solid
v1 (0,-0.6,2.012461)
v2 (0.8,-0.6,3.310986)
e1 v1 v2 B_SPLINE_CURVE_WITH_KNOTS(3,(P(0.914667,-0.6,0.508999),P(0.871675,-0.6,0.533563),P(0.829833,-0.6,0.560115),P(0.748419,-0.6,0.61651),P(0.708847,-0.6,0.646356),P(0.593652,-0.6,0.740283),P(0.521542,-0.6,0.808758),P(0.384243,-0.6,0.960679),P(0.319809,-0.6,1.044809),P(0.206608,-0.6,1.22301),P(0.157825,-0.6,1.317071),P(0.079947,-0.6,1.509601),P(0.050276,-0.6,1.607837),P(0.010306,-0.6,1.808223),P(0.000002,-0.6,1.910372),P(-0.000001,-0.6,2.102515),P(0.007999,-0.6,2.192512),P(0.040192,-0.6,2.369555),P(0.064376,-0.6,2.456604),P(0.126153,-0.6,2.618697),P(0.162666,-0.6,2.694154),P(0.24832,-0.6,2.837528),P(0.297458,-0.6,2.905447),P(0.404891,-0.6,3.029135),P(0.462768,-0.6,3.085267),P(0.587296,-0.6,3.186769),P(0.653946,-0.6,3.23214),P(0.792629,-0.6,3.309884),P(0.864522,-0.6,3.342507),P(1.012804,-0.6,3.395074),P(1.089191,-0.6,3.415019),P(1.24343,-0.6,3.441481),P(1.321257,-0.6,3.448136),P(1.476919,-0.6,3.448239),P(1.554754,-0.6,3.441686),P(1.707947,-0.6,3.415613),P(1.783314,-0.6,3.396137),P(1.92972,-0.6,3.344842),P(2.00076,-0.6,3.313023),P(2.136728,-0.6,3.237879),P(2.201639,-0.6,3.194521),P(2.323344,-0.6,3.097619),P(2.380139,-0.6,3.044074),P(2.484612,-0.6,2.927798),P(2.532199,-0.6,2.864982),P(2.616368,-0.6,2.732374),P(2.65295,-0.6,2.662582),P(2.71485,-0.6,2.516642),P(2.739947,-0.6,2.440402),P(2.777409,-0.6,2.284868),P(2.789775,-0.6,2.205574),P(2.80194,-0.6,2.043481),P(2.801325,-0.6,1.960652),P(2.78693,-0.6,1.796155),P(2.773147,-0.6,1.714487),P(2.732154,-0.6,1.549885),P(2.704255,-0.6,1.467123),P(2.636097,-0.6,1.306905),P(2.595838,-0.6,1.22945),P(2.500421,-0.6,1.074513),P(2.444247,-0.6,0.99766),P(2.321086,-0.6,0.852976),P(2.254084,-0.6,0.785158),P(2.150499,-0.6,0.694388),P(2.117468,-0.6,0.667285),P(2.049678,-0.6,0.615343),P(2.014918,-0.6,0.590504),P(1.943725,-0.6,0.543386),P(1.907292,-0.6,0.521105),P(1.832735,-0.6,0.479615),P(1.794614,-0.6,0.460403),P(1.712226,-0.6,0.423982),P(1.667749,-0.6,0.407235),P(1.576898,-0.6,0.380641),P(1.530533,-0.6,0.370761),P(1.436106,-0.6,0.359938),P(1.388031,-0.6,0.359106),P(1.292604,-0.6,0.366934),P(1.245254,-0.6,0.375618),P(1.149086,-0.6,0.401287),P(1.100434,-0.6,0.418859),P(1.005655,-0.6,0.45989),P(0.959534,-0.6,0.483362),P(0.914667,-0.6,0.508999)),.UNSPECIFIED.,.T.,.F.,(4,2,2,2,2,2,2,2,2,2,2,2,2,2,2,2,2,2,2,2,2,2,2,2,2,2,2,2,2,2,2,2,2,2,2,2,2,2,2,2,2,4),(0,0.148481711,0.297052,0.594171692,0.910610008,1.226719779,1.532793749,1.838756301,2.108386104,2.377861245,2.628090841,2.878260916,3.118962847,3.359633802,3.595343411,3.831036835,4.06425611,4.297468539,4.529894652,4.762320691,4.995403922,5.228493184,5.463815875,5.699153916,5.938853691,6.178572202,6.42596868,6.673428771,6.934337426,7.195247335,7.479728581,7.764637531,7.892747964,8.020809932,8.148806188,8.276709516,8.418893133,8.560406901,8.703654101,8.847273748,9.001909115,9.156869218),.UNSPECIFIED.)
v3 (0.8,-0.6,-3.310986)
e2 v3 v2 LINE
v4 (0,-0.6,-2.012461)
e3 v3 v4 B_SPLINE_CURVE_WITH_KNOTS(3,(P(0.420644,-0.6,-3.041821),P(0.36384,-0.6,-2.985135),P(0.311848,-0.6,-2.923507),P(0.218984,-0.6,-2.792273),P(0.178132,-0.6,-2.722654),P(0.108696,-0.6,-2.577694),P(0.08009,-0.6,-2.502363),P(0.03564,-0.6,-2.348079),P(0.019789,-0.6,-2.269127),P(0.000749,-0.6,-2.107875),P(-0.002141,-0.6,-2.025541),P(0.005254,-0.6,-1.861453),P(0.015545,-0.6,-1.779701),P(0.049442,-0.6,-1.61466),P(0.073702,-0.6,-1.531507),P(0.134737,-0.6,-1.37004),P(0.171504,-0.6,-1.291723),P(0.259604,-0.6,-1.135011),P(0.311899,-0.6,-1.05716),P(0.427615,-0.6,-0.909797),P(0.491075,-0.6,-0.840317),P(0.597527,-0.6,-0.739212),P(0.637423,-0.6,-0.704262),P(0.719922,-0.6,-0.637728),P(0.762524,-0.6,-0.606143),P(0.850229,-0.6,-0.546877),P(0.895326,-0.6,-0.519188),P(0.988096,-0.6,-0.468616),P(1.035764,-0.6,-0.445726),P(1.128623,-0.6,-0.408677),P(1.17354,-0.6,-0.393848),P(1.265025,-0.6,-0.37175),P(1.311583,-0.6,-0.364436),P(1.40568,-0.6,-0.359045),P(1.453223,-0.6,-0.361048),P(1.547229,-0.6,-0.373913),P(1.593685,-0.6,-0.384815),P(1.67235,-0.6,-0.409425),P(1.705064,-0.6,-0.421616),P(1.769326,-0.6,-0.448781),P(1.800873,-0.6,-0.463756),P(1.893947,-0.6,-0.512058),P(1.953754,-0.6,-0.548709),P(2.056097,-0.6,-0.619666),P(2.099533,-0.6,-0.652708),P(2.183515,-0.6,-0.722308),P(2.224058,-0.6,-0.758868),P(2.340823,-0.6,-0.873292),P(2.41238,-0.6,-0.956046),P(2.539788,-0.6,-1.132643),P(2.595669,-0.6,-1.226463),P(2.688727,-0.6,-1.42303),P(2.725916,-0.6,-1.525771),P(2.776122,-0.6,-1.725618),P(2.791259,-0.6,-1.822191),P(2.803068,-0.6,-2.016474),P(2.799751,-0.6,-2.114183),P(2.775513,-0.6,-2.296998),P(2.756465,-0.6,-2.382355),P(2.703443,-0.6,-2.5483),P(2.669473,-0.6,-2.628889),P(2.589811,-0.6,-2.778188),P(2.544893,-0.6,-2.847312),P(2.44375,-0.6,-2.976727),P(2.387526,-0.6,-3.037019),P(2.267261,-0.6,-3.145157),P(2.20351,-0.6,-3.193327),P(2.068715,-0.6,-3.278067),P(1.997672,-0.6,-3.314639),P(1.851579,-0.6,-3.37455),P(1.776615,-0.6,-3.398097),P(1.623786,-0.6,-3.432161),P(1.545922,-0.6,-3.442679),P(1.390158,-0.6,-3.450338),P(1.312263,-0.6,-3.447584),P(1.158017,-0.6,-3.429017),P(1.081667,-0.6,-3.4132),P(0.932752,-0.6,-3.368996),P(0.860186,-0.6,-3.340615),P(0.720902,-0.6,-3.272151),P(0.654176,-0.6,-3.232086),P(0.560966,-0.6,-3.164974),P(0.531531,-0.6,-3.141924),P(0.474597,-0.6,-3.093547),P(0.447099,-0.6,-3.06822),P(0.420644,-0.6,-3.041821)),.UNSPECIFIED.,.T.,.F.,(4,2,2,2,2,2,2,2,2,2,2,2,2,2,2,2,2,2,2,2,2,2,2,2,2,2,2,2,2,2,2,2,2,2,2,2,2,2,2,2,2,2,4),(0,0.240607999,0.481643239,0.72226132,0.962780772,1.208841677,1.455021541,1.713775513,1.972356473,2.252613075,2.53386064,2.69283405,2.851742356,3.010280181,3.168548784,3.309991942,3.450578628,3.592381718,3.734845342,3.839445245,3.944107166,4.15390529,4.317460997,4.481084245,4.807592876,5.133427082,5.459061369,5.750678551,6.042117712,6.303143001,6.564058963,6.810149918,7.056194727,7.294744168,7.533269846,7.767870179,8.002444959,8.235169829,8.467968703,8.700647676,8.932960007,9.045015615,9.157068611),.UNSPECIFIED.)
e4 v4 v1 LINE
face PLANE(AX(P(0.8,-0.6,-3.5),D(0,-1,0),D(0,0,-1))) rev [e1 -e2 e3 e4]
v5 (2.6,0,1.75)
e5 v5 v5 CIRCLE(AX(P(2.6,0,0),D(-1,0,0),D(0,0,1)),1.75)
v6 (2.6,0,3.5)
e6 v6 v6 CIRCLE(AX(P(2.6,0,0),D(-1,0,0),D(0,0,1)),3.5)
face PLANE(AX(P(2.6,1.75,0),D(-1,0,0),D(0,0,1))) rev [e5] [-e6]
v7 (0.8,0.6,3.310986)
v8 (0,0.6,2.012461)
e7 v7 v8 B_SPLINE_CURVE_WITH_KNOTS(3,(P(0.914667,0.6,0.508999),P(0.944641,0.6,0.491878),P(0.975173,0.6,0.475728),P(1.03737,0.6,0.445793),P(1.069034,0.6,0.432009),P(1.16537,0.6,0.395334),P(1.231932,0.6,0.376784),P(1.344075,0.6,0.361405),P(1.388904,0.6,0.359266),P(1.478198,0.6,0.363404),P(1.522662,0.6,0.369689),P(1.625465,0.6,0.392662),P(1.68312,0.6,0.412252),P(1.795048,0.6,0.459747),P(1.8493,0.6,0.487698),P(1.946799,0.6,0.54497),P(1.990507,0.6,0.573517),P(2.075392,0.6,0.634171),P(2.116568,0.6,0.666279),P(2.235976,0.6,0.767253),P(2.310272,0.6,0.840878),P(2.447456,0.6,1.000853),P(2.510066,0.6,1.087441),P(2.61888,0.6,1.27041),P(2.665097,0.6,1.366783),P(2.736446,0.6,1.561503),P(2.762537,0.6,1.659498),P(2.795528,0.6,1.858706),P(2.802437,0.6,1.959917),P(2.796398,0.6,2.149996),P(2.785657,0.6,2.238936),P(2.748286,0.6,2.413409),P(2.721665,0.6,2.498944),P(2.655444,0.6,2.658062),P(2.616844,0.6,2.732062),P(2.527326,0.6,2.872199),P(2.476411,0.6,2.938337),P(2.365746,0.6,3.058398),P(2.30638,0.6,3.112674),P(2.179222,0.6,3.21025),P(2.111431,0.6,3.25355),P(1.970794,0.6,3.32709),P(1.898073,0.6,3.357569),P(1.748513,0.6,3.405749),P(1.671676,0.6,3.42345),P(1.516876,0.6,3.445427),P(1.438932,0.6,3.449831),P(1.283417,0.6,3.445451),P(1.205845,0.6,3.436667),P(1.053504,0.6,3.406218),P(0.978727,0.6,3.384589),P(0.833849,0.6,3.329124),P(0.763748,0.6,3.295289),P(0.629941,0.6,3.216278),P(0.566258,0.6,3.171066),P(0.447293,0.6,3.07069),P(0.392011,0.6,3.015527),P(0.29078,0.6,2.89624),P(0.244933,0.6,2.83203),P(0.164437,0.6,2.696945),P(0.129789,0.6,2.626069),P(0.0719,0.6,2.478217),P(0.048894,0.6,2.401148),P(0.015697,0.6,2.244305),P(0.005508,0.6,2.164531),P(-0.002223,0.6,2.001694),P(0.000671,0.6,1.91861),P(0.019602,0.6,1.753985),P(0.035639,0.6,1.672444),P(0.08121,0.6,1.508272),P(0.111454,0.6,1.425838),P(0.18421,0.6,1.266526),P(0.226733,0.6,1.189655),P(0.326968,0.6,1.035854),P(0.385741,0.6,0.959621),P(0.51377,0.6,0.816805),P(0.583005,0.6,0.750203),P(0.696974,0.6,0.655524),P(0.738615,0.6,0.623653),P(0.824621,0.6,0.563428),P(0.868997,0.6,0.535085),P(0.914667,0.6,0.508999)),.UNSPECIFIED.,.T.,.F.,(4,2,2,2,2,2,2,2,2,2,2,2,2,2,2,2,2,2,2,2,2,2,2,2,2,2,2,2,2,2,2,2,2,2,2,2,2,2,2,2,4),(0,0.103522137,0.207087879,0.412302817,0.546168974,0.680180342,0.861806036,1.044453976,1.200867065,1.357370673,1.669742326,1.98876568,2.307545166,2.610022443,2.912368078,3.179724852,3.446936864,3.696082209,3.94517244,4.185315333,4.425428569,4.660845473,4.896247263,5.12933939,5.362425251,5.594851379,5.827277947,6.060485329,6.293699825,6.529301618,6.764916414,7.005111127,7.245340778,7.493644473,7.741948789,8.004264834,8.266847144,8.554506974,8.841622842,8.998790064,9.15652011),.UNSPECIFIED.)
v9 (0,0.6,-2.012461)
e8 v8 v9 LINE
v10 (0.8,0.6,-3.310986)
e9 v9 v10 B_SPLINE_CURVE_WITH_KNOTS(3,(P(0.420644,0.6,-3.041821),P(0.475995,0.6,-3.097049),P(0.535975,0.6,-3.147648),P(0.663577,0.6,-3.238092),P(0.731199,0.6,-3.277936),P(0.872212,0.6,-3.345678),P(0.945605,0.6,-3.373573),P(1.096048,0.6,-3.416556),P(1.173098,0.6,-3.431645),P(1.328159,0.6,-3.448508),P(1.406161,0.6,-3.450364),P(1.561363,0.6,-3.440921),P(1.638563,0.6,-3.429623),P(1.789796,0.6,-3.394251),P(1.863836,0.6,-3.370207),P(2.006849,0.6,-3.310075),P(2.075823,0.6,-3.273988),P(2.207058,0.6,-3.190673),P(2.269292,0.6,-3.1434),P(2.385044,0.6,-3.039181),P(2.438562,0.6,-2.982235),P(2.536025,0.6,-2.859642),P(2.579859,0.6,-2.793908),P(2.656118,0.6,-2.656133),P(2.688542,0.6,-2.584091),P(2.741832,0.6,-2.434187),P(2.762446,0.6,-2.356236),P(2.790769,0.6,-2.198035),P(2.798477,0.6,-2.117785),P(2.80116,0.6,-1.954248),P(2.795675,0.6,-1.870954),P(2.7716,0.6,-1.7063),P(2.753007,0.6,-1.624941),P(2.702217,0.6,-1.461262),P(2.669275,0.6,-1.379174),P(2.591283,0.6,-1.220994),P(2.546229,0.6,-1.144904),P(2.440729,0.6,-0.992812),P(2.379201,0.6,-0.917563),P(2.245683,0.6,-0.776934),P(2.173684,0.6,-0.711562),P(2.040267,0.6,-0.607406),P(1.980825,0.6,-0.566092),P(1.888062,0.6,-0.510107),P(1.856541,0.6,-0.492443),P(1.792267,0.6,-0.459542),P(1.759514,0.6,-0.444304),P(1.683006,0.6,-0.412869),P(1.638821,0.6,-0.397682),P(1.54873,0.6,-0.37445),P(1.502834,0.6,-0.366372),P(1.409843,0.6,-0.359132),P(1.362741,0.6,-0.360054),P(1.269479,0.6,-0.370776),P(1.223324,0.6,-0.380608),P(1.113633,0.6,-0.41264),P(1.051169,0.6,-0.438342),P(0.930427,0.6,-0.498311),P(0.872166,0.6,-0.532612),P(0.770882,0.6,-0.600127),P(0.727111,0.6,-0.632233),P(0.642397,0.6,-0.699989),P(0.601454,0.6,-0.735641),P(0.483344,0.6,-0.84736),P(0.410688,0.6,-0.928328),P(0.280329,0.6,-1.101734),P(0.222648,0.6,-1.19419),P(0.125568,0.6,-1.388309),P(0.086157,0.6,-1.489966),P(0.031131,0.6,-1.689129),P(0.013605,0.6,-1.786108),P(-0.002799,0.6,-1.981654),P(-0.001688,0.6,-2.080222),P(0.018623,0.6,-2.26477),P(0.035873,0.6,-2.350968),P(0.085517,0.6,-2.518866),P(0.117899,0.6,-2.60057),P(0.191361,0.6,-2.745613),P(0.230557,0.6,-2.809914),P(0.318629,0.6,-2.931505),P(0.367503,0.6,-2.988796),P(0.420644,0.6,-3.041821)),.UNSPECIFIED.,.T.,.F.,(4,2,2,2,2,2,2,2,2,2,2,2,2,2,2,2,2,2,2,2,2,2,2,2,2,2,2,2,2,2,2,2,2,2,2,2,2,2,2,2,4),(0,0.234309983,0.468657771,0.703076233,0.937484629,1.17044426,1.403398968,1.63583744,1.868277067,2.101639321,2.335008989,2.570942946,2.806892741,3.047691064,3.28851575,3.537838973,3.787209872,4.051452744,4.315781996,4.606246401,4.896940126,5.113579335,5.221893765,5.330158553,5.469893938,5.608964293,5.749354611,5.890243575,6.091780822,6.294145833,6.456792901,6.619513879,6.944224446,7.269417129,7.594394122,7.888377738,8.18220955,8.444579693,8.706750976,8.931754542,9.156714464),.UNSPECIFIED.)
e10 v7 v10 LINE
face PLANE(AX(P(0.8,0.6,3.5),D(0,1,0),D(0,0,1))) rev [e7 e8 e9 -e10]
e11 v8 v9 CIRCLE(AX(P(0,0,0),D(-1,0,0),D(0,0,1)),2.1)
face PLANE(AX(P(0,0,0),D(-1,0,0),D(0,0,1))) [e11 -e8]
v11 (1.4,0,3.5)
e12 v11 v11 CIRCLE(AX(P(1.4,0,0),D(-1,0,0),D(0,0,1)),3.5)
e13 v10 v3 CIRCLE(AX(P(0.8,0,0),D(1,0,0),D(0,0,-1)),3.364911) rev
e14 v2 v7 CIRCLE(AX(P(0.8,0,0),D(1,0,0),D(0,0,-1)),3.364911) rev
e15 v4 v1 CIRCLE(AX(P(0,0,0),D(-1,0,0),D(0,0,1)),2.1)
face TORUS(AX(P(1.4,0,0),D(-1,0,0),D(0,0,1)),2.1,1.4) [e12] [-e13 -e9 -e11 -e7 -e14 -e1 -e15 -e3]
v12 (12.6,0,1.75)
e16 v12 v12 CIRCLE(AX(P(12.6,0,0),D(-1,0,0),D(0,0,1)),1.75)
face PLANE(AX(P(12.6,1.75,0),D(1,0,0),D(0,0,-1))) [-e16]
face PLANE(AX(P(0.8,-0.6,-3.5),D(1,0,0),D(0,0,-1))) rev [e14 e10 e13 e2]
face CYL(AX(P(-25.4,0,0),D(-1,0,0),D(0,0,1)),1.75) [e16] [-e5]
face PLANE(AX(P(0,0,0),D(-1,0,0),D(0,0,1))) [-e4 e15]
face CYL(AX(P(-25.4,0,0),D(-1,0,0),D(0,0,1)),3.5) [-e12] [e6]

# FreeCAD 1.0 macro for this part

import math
import FreeCAD as App
import Part
import Sketcher

V = App.Vector


def add_polygon(sketch, points):
    """Adds a closed chain of lines whose ends are joined by coincident constraints."""
    first, n = sketch.GeometryCount, len(points)
    for a, b in zip(points, points[1:] + points[:1]):
        sketch.addGeometry(Part.LineSegment(App.Vector(*a, 0), App.Vector(*b, 0)), False)
    for i in range(n):
        sketch.addConstraint(Sketcher.Constraint("Coincident", first + i, 2, first + (i + 1) % n, 1))

doc = App.newDocument("Part")
body = doc.addObject("PartDesign::Body", "Body")

sketch1 = body.newObject("Sketcher::SketchObject", "Sketch")
sketch1.AttachmentSupport = (doc.getObject("XY_Plane"), [""])
sketch1.MapMode = "FlatFace"
sketch1.addGeometry([
    Part.LineSegment(V(2.6, 1.8, 0), V(2.6, 3.5, 0)),
    Part.LineSegment(V(2.6, 3.5, 0), V(1.4, 3.5, 0)),
    Part.ArcOfCircle(Part.Circle(V(1.4, 2.1, 0), V(0, 0, 1), 1.4), math.radians(90), math.radians(180)),
    Part.LineSegment(V(0, 2.1, 0), V(0, 0, 0)),
    Part.LineSegment(V(0, 0, 0), V(12.6, 0, 0)),
    Part.LineSegment(V(12.6, 0, 0), V(12.6, 1.8, 0)),
    Part.LineSegment(V(12.6, 1.8, 0), V(2.6, 1.8, 0)),
], False)
sketch1.addConstraint([
    Sketcher.Constraint("Coincident", 0, 2, 1, 1),
    Sketcher.Constraint("Tangent", 1, 2, 2, 1),
    Sketcher.Constraint("Tangent", 2, 2, 3, 1),
    Sketcher.Constraint("Coincident", 3, 2, 4, 1),
    Sketcher.Constraint("Coincident", 4, 2, 5, 1),
    Sketcher.Constraint("Coincident", 5, 2, 6, 1),
    Sketcher.Constraint("Coincident", 6, 2, 0, 1),
    Sketcher.Constraint("Vertical", 0),
    Sketcher.Constraint("Horizontal", 1),
    Sketcher.Constraint("Vertical", 3),
    Sketcher.Constraint("Horizontal", 4),
    Sketcher.Constraint("Vertical", 5),
    Sketcher.Constraint("Horizontal", 6),
    Sketcher.Constraint("Coincident", 3, 2, -1, 1),
    Sketcher.Constraint("Equal", 0, 5),
    Sketcher.Constraint("Radius", 2, 1.4),
    Sketcher.Constraint("DistanceX", 6, 2, 6, 1, 10.0),
    Sketcher.Constraint("DistanceX", 1, 2, 1, 1, 1.2),
    Sketcher.Constraint("DistanceY", 3, 2, 3, 1, 2.1),
])
revolution = body.newObject("PartDesign::Revolution", "Revolution")
revolution.Profile = sketch1
revolution.ReferenceAxis = (sketch1, ["H_Axis"])
revolution.Angle = 360

sketch2 = body.newObject("Sketcher::SketchObject", "Sketch001")
sketch2.AttachmentSupport = (doc.getObject("YZ_Plane"), [""])
sketch2.MapMode = "FlatFace"
add_polygon(sketch2, [(0.6, 3.5), (-0.6, 3.5), (-0.6, -3.5), (0.6, -3.5)])
sketch2.addConstraint([
    Sketcher.Constraint("Horizontal", 0),
    Sketcher.Constraint("Vertical", 1),
    Sketcher.Constraint("Horizontal", 2),
    Sketcher.Constraint("Vertical", 3),
    Sketcher.Constraint("Symmetric", 0, 2, 2, 2, -1, 1),
    Sketcher.Constraint("DistanceY", 1, 2, 1, 1, 7.0),
    Sketcher.Constraint("DistanceX", 0, 2, 0, 1, 1.2),
])
pocket1 = body.newObject("PartDesign::Pocket", "Pocket")
pocket1.Profile = sketch2
pocket1.Length = 0.8
pocket1.Reversed = True

doc.recompute()
